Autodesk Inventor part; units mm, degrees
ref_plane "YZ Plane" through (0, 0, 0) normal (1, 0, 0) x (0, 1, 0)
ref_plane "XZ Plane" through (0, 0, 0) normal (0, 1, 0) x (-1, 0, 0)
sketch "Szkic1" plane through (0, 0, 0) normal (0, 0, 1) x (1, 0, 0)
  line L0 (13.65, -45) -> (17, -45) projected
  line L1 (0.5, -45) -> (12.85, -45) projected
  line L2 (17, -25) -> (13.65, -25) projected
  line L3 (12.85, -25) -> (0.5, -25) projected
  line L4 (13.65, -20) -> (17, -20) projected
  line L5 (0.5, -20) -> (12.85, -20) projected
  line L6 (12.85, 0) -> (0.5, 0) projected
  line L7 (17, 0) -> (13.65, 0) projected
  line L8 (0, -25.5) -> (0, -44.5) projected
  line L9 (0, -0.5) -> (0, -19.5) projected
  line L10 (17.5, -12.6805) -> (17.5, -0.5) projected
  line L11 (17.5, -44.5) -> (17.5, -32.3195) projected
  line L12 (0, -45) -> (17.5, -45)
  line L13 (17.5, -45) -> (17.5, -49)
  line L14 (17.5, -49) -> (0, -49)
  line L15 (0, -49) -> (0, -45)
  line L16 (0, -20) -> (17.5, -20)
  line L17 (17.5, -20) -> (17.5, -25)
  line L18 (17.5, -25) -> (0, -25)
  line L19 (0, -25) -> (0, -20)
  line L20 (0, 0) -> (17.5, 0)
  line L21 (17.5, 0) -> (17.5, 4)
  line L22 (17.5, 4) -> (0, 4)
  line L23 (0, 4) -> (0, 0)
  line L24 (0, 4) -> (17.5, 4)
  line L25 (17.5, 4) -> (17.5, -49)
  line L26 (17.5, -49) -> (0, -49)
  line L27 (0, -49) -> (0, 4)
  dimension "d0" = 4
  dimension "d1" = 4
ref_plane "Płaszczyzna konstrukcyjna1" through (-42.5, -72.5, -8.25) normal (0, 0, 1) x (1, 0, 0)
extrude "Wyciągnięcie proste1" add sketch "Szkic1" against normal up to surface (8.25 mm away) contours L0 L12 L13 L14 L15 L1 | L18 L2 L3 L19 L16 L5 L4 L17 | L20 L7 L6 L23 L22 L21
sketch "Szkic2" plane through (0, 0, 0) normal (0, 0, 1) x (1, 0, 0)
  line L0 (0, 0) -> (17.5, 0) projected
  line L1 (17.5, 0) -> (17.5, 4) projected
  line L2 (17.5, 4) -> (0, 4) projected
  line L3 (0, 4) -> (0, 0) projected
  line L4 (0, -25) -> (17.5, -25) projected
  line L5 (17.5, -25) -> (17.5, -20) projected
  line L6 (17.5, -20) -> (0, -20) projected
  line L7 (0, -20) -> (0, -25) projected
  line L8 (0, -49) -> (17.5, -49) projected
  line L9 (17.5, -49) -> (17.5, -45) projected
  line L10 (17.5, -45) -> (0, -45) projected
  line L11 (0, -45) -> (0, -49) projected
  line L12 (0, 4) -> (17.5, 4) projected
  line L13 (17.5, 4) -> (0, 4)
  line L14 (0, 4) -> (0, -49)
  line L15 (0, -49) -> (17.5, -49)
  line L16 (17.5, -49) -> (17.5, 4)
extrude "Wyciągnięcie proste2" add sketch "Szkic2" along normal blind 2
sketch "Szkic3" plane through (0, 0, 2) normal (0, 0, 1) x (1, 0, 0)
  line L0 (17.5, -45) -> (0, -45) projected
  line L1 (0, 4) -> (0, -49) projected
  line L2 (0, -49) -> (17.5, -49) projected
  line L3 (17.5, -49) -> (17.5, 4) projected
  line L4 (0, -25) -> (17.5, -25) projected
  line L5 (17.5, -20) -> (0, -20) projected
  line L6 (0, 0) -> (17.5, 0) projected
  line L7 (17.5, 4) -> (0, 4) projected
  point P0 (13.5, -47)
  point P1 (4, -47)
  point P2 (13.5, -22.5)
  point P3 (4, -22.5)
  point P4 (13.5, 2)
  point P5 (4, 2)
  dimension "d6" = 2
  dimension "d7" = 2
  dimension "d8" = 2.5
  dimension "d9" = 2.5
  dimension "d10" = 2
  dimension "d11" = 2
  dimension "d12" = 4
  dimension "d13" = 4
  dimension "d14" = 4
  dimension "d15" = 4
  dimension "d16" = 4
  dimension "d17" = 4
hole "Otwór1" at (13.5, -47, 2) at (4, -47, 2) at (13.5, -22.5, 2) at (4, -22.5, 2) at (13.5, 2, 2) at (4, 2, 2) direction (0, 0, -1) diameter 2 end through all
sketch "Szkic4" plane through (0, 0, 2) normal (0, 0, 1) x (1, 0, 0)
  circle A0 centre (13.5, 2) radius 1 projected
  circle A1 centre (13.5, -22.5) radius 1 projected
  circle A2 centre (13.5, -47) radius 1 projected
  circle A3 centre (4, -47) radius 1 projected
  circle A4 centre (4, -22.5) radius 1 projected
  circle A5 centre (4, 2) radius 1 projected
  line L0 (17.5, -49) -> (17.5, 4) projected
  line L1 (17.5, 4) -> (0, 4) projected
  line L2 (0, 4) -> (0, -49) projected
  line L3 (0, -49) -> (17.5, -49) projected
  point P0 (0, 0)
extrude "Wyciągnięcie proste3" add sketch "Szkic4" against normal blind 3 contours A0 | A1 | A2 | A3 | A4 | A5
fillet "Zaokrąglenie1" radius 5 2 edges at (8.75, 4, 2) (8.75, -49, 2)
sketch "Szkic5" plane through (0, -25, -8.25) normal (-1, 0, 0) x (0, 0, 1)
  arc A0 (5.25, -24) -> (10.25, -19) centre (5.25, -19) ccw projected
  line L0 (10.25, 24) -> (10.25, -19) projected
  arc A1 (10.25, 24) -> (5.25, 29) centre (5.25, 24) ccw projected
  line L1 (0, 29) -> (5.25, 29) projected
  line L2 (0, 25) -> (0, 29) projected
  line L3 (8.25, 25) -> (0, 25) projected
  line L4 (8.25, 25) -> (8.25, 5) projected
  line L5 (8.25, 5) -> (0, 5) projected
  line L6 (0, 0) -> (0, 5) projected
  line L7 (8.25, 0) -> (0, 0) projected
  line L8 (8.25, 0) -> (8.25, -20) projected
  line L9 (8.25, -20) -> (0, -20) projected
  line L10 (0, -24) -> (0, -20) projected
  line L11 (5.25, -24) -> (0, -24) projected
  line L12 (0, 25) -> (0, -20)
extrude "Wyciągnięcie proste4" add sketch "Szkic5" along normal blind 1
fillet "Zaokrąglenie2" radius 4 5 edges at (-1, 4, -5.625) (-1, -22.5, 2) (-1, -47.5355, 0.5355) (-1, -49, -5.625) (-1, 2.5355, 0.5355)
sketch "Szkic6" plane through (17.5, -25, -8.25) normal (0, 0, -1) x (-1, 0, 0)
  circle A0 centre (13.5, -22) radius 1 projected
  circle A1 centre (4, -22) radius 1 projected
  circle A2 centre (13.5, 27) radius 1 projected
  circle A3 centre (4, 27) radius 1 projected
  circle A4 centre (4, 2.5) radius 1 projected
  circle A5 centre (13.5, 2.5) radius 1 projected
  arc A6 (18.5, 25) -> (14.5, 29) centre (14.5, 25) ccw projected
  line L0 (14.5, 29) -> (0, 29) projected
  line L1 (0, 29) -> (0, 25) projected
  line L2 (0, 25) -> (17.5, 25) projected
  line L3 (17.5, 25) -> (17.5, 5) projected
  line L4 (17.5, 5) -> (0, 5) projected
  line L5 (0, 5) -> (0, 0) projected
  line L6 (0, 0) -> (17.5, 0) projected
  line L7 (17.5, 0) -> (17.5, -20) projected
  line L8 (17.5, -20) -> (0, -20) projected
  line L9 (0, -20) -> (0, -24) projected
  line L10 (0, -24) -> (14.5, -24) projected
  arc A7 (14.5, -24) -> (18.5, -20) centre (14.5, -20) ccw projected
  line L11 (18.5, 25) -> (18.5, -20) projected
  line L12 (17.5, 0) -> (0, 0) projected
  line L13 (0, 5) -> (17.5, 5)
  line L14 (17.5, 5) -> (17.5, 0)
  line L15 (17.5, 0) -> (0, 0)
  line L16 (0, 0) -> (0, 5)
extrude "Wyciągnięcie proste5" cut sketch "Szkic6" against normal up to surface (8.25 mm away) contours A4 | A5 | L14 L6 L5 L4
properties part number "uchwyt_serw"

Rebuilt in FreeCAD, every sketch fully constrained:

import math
import FreeCAD as App
import Part
import Sketcher
Q = App.Units.Quantity


def edges_at(feature, points):
    """Names of the edges that pass closest to the given points."""
    edges = feature.Shape.Edges
    near = lambda p: min(range(len(edges)), key=lambda i: edges[i].distToShape(Part.Vertex(*p))[0])
    return sorted({f"Edge{near(p) + 1}" for p in points})


def add_polygon(sketch, points):
    """Adds a closed chain of lines whose ends are joined by coincident constraints."""
    first, n = sketch.GeometryCount, len(points)
    for a, b in zip(points, points[1:] + points[:1]):
        sketch.addGeometry(Part.LineSegment(App.Vector(*a, 0), App.Vector(*b, 0)), False)
    for i in range(n):
        sketch.addConstraint(Sketcher.Constraint("Coincident", first + i, 2, first + (i + 1) % n, 1))

doc = App.newDocument("Part")
params = doc.addObject("Spreadsheet::Sheet", "Params")
for row, (alias, value) in enumerate([
    ("sketch1_height", "4 mm"),
    ("sketch1_height2", "5 mm"),
    ("sketch1_width", "17.5 mm"),
    ("pad1_length", "8.25 mm"),
    ("sketch2_height", "53 mm"),
    ("sketch2_width", "17.5 mm"),
    ("pad2_length", "2 mm"),
    ("sketch3_diameter", "2 mm"),
    ("hole_diameter", "2 mm"),
    ("sketch4_diameter", "2 mm"),
    ("pad3_length", "3 mm"),
    ("fillet_radius", "5 mm"),
    ("sketch5_radius", "5 mm"),
    ("sketch5_width", "43 mm"),
    ("sketch5_height", "5.25 mm"),
    ("pad4_length", "1 mm"),
    ("fillet2_radius", "4 mm"),
    ("sketch6_height", "5 mm"),
    ("sketch6_width", "17.5 mm"),
    ("pocket1_length", "8.25 mm"),
], start=1):
    params.set(f"A{row}", alias)
    params.set(f"B{row}", "=" + value)
    params.setAlias(f"B{row}", alias)

body = doc.addObject("PartDesign::Body", "Body")
body.AllowCompound = True

# Sketch on XY plane
sketch1 = body.newObject("Sketcher::SketchObject", "Sketch")
sketch1.AttachmentSupport = (doc.getObject("XY_Plane"), [""])
sketch1.MapMode = "FlatFace"
add_polygon(sketch1, [(17.5, -45), (0, -45), (0, -49), (17.5, -49)])  # lines 0-3
add_polygon(sketch1, [(0, -25), (17.5, -25), (17.5, -20), (0, -20)])  # lines 4-7
add_polygon(sketch1, [(0, 0), (17.5, 0), (17.5, 4), (0, 4)])  # lines 8-11
sketch1.addConstraint([
    Sketcher.Constraint("Horizontal", 0),
    Sketcher.Constraint("Vertical", 1),
    Sketcher.Constraint("Horizontal", 2),
    Sketcher.Constraint("Vertical", 3),
    Sketcher.Constraint("Horizontal", 4),
    Sketcher.Constraint("Vertical", 5),
    Sketcher.Constraint("Horizontal", 6),
    Sketcher.Constraint("Vertical", 7),
    Sketcher.Constraint("Horizontal", 8),
    Sketcher.Constraint("Vertical", 9),
    Sketcher.Constraint("Horizontal", 10),
    Sketcher.Constraint("Vertical", 11),
    Sketcher.Constraint("Coincident", 11, 2, -1, 1),
    Sketcher.Constraint("PointOnObject", 0, 2, -2),
    Sketcher.Constraint("PointOnObject", 6, 2, -2),
    Sketcher.Constraint("Vertical", 3, 2, 4, 2),
    Sketcher.Constraint("Vertical", 5, 2, 8, 2),
    Sketcher.Constraint("Equal", 3, 9),
    Sketcher.Constraint("DistanceY", 1, 2, 1, 1, Q("4 mm")),
    Sketcher.Constraint("DistanceY", 5, 1, 5, 2, Q("5 mm")),
    Sketcher.Constraint("DistanceX", 0, 2, 0, 1, Q("17.5 mm")),
    Sketcher.Constraint("DistanceY", 0, 2, -1, 1, Q("45 mm")),
    Sketcher.Constraint("DistanceY", 4, 2, -1, 1, Q("25 mm")),
])
sketch1.setExpression("Constraints[30]", "Params.sketch1_height")
sketch1.setExpression("Constraints[31]", "Params.sketch1_height2")
sketch1.setExpression("Constraints[32]", "Params.sketch1_width")
pad1 = body.newObject("PartDesign::Pad", "Pad")
pad1.Profile = sketch1
pad1.setExpression("Length", "Params.pad1_length")
pad1.Reversed = True

# Sketch on XY plane
sketch2 = body.newObject("Sketcher::SketchObject", "Sketch001")
sketch2.AttachmentSupport = (doc.getObject("XY_Plane"), [""])
sketch2.MapMode = "FlatFace"
add_polygon(sketch2, [(0, 4), (0, -49), (18, -49), (18, 4)])  # lines 0-3
sketch2.addConstraint([
    Sketcher.Constraint("Vertical", 0),
    Sketcher.Constraint("Horizontal", 1),
    Sketcher.Constraint("Vertical", 2),
    Sketcher.Constraint("Horizontal", 3),
    Sketcher.Constraint("PointOnObject", 0, 2, -2),
    Sketcher.Constraint("DistanceY", 0, 2, 0, 1, Q("53 mm")),
    Sketcher.Constraint("DistanceX", 1, 1, 1, 2, Q("17.5 mm")),
    Sketcher.Constraint("DistanceY", 0, 2, -1, 1, Q("49 mm")),
])
sketch2.setExpression("Constraints[9]", "Params.sketch2_height")
sketch2.setExpression("Constraints[10]", "Params.sketch2_width")
pad2 = body.newObject("PartDesign::Pad", "Pad001")
pad2.Profile = sketch2
pad2.setExpression("Length", "Params.pad2_length")

# Sketch on XY plane
sketch3 = body.newObject("Sketcher::SketchObject", "Sketch002")
sketch3.AttachmentSupport = (doc.getObject("XY_Plane"), [""])
sketch3.MapMode = "FlatFace"
sketch3.AttachmentOffset = App.Placement(App.Vector(0, 0, 2), App.Rotation())
sketch3.addGeometry([
    Part.Circle(App.Vector(13.5, -47, 0), App.Vector(0, 0, 1), 1),  # 0
    Part.Circle(App.Vector(4, -47, 0), App.Vector(0, 0, 1), 1),  # 1
    Part.Circle(App.Vector(13.5, -22.5, 0), App.Vector(0, 0, 1), 1),  # 2
    Part.Circle(App.Vector(4, -22.5, 0), App.Vector(0, 0, 1), 1),  # 3
    Part.Circle(App.Vector(13.5, 2, 0), App.Vector(0, 0, 1), 1),  # 4
    Part.Circle(App.Vector(4, 2, 0), App.Vector(0, 0, 1), 1),  # 5
], False)
sketch3.addConstraint([
    Sketcher.Constraint("Equal", 0, 1),
    Sketcher.Constraint("Equal", 1, 2),
    Sketcher.Constraint("Equal", 2, 3),
    Sketcher.Constraint("Equal", 3, 4),
    Sketcher.Constraint("Equal", 4, 5),
    Sketcher.Constraint("Horizontal", 0, 3, 1, 3),
    Sketcher.Constraint("Horizontal", 2, 3, 3, 3),
    Sketcher.Constraint("Horizontal", 4, 3, 5, 3),
    Sketcher.Constraint("Vertical", 0, 3, 2, 3),
    Sketcher.Constraint("Vertical", 1, 3, 3, 3),
    Sketcher.Constraint("Vertical", 2, 3, 4, 3),
    Sketcher.Constraint("Vertical", 3, 3, 5, 3),
    Sketcher.Constraint("Diameter", 0, Q("2 mm")),
    Sketcher.Constraint("DistanceY", 0, 3, -1, 1, Q("47 mm")),
    Sketcher.Constraint("DistanceX", -1, 1, 1, 3, Q("4 mm")),
    Sketcher.Constraint("DistanceY", -1, 1, 4, 3, Q("2 mm")),
    Sketcher.Constraint("DistanceX", -1, 1, 0, 3, Q("13.5 mm")),
    Sketcher.Constraint("DistanceY", 2, 3, -1, 1, Q("22.5 mm")),
])
sketch3.setExpression("Constraints[12]", "Params.sketch3_diameter")
doc.recompute()
hole = body.newObject("PartDesign::Hole", "Hole")
hole.Profile = sketch3
hole.ThreadType = "None"
hole.setExpression("Diameter", "Params.hole_diameter")
hole.DepthType = "ThroughAll"

# Sketch on XY plane
sketch4 = body.newObject("Sketcher::SketchObject", "Sketch003")
sketch4.AttachmentSupport = (doc.getObject("XY_Plane"), [""])
sketch4.MapMode = "FlatFace"
sketch4.AttachmentOffset = App.Placement(App.Vector(0, 0, 2), App.Rotation())
sketch4.addGeometry([
    Part.Circle(App.Vector(13.5, 2, 0), App.Vector(0, 0, 1), 1),  # 0
    Part.Circle(App.Vector(13.5, -22.5, 0), App.Vector(0, 0, 1), 1),  # 1
    Part.Circle(App.Vector(13.5, -47, 0), App.Vector(0, 0, 1), 1),  # 2
    Part.Circle(App.Vector(4, -47, 0), App.Vector(0, 0, 1), 1),  # 3
    Part.Circle(App.Vector(4, -22.5, 0), App.Vector(0, 0, 1), 1),  # 4
    Part.Circle(App.Vector(4, 2, 0), App.Vector(0, 0, 1), 1),  # 5
], False)
sketch4.addConstraint([
    Sketcher.Constraint("Equal", 0, 1),
    Sketcher.Constraint("Equal", 1, 2),
    Sketcher.Constraint("Equal", 2, 3),
    Sketcher.Constraint("Equal", 3, 4),
    Sketcher.Constraint("Equal", 4, 5),
    Sketcher.Constraint("Horizontal", 2, 3, 3, 3),
    Sketcher.Constraint("Horizontal", 1, 3, 4, 3),
    Sketcher.Constraint("Horizontal", 0, 3, 5, 3),
    Sketcher.Constraint("Vertical", 0, 3, 1, 3),
    Sketcher.Constraint("Vertical", 1, 3, 2, 3),
    Sketcher.Constraint("Vertical", 3, 3, 4, 3),
    Sketcher.Constraint("Vertical", 4, 3, 5, 3),
    Sketcher.Constraint("Diameter", 0, Q("2 mm")),
    Sketcher.Constraint("DistanceY", -1, 1, 0, 3, Q("2 mm")),
    Sketcher.Constraint("DistanceY", 2, 3, -1, 1, Q("47 mm")),
    Sketcher.Constraint("DistanceX", -1, 1, 3, 3, Q("4 mm")),
    Sketcher.Constraint("DistanceX", -1, 1, 0, 3, Q("13.5 mm")),
    Sketcher.Constraint("DistanceY", 1, 3, -1, 1, Q("22.5 mm")),
])
sketch4.setExpression("Constraints[12]", "Params.sketch4_diameter")
pad3 = body.newObject("PartDesign::Pad", "Pad002")
pad3.Profile = sketch4
pad3.setExpression("Length", "Params.pad3_length")
pad3.Reversed = True
doc.recompute()

fillet = body.newObject("PartDesign::Fillet", "Fillet")
fillet.Base = (pad3, edges_at(pad3, [(8.75, 4, 2), (8.75, -49, 2)]))
fillet.setExpression("Radius", "Params.fillet_radius")

# Sketch on YZ plane
sketch5 = body.newObject("Sketcher::SketchObject", "Sketch004")
sketch5.AttachmentSupport = (doc.getObject("YZ_Plane"), [""])
sketch5.MapMode = "FlatFace"
sketch5.addGeometry([
    Part.LineSegment(App.Vector(-49, -8, 0), App.Vector(-49, -3, 0)),  # 0
    Part.ArcOfCircle(Part.Circle(App.Vector(-44, -3, 0), App.Vector(0, 0, 1), 5), math.radians(90), math.radians(180)),  # 1
    Part.LineSegment(App.Vector(-44, 2, 0), App.Vector(-1, 2, 0)),  # 2
    Part.ArcOfCircle(Part.Circle(App.Vector(-1, -3, 0), App.Vector(0, 0, 1), 5), math.radians(0), math.radians(90)),  # 3
    Part.LineSegment(App.Vector(4, -3, 0), App.Vector(4, -8, 0)),  # 4
    Part.LineSegment(App.Vector(4, -8, 0), App.Vector(-49, -8, 0)),  # 5
], False)
sketch5.addConstraint([
    Sketcher.Constraint("Tangent", 0, 2, 1, 2),
    Sketcher.Constraint("Tangent", 1, 1, 2, 1),
    Sketcher.Constraint("Tangent", 2, 2, 3, 2),
    Sketcher.Constraint("Tangent", 3, 1, 4, 1),
    Sketcher.Constraint("Coincident", 4, 2, 5, 1),
    Sketcher.Constraint("Coincident", 5, 2, 0, 1),
    Sketcher.Constraint("Vertical", 0),
    Sketcher.Constraint("Horizontal", 2),
    Sketcher.Constraint("Vertical", 4),
    Sketcher.Constraint("Horizontal", 5),
    Sketcher.Constraint("Equal", 1, 3),
    Sketcher.Constraint("Radius", 1, Q("5 mm")),
    Sketcher.Constraint("DistanceX", 2, 1, 2, 2, Q("43 mm")),
    Sketcher.Constraint("DistanceX", 1, 3, -1, 1, Q("44 mm")),
    Sketcher.Constraint("DistanceY", 1, 3, -1, 1, Q("3 mm")),
    Sketcher.Constraint("DistanceY", 0, 1, 0, 2, Q("5.25 mm")),
])
sketch5.setExpression("Constraints[11]", "Params.sketch5_radius")
sketch5.setExpression("Constraints[12]", "Params.sketch5_width")
sketch5.setExpression("Constraints[15]", "Params.sketch5_height")
pad4 = body.newObject("PartDesign::Pad", "Pad003")
pad4.Profile = sketch5
pad4.setExpression("Length", "Params.pad4_length")
pad4.Reversed = True
doc.recompute()

fillet2 = body.newObject("PartDesign::Fillet", "Fillet001")
fillet2.Base = (pad4, edges_at(pad4, [
    (-1, 4, -5.625),
    (-1, -22.5, 2),
    (-1, -47.535, 0.535),
    (-1, -49, -5.625),
    (-1, 2.535, 0.535),
]))
fillet2.setExpression("Radius", "Params.fillet2_radius")

# Sketch on XY plane
sketch6 = body.newObject("Sketcher::SketchObject", "Sketch005")
sketch6.AttachmentSupport = (doc.getObject("XY_Plane"), [""])
sketch6.MapMode = "FlatFace"
sketch6.AttachmentOffset = App.Placement(App.Vector(0, 0, -8.25), App.Rotation())
add_polygon(sketch6, [(0, -25), (0, -20), (18, -20), (18, -25)])  # lines 0-3
sketch6.addConstraint([
    Sketcher.Constraint("Vertical", 0),
    Sketcher.Constraint("Horizontal", 1),
    Sketcher.Constraint("Vertical", 2),
    Sketcher.Constraint("Horizontal", 3),
    Sketcher.Constraint("PointOnObject", 0, 2, -2),
    Sketcher.Constraint("DistanceY", 0, 1, 0, 2, Q("5 mm")),
    Sketcher.Constraint("DistanceX", 1, 1, 1, 2, Q("17.5 mm")),
    Sketcher.Constraint("DistanceY", 0, 2, -1, 1, Q("20 mm")),
])
sketch6.setExpression("Constraints[9]", "Params.sketch6_height")
sketch6.setExpression("Constraints[10]", "Params.sketch6_width")
pocket1 = body.newObject("PartDesign::Pocket", "Pocket")
pocket1.Profile = sketch6
pocket1.setExpression("Length", "Params.pocket1_length")
pocket1.Reversed = True

doc.recompute()
